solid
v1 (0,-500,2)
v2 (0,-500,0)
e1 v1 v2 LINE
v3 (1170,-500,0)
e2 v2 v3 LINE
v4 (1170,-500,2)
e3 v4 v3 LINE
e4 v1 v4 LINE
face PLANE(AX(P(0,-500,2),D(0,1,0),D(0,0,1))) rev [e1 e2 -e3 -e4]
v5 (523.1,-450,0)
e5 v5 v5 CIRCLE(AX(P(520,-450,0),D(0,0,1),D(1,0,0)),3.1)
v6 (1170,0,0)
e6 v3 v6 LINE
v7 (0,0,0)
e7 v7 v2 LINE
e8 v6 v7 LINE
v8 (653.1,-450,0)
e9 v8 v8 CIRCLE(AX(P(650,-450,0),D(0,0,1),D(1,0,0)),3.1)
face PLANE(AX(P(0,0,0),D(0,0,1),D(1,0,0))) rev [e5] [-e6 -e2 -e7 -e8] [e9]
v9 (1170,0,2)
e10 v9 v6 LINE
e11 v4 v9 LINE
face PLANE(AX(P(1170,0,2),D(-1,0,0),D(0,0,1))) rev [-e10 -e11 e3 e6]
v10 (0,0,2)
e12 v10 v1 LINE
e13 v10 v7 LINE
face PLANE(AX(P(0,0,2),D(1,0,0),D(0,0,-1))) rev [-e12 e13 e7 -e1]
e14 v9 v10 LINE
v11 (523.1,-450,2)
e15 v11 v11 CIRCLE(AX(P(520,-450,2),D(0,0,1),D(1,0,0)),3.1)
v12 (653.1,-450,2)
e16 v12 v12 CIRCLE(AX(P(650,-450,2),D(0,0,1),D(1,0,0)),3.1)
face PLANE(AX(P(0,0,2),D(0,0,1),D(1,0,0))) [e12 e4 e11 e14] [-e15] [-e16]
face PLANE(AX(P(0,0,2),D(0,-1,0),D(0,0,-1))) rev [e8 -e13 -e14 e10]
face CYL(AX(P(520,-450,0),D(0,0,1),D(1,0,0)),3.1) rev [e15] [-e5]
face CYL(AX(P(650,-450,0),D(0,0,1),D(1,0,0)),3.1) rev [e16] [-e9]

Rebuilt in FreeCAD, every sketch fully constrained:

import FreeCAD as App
import Part
import Sketcher


def add_polygon(sketch, points):
    """Adds a closed chain of lines whose ends are joined by coincident constraints."""
    first, n = sketch.GeometryCount, len(points)
    for a, b in zip(points, points[1:] + points[:1]):
        sketch.addGeometry(Part.LineSegment(App.Vector(*a, 0), App.Vector(*b, 0)), False)
    for i in range(n):
        sketch.addConstraint(Sketcher.Constraint("Coincident", first + i, 2, first + (i + 1) % n, 1))

doc = App.newDocument("Part")
params = doc.addObject("Spreadsheet::Sheet", "Params")
for row, (alias, value) in enumerate([
    ("sketch1_width", "1170 mm"),
    ("sketch1_height", "500 mm"),
    ("pad1_length", "2 mm"),
    ("sketch2_diameter", "6.2 mm"),
], start=1):
    params.set(f"A{row}", alias)
    params.set(f"B{row}", "=" + value)
    params.setAlias(f"B{row}", alias)

body = doc.addObject("PartDesign::Body", "Body")

# Sketch on XY plane
sketch1 = body.newObject("Sketcher::SketchObject", "Sketch")
sketch1.AttachmentSupport = (doc.getObject("XY_Plane"), [""])
sketch1.MapMode = "FlatFace"
add_polygon(sketch1, [(0, 0), (0, -500), (1170, -500), (1170, 0)])  # lines 0-3
sketch1.addConstraint(Sketcher.Constraint("Vertical", 0))
sketch1.addConstraint(Sketcher.Constraint("Horizontal", 1))
sketch1.addConstraint(Sketcher.Constraint("Vertical", 2))
sketch1.addConstraint(Sketcher.Constraint("Horizontal", 3))
sketch1.addConstraint(Sketcher.Constraint("Coincident", 3, 2, -1, 1))
sketch1.addConstraint(Sketcher.Constraint("DistanceX", 1, 1, 1, 2, 1170.0))
sketch1.addConstraint(Sketcher.Constraint("DistanceY", 0, 2, 0, 1, 500.0))
sketch1.setExpression("Constraints[9]", "Params.sketch1_width")
sketch1.setExpression("Constraints[10]", "Params.sketch1_height")
pad1 = body.newObject("PartDesign::Pad", "Pad")
pad1.Profile = sketch1
pad1.setExpression("Length", "Params.pad1_length")

# Sketch on XY plane
sketch2 = body.newObject("Sketcher::SketchObject", "Sketch001")
sketch2.AttachmentSupport = (doc.getObject("XY_Plane"), [""])
sketch2.MapMode = "FlatFace"
sketch2.AttachmentOffset = App.Placement(App.Vector(0, 0, 2), App.Rotation())
sketch2.addGeometry(Part.Circle(App.Vector(520, -450, 0), App.Vector(0, 0, 1), 3.1), False)
sketch2.addGeometry(Part.Circle(App.Vector(650, -450, 0), App.Vector(0, 0, 1), 3.1), False)
sketch2.addConstraint(Sketcher.Constraint("Equal", 0, 1))
sketch2.addConstraint(Sketcher.Constraint("Horizontal", 0, 3, 1, 3))
sketch2.addConstraint(Sketcher.Constraint("Diameter", 0, 6.2))
sketch2.addConstraint(Sketcher.Constraint("DistanceX", -1, 1, 0, 3, 520.0))
sketch2.addConstraint(Sketcher.Constraint("DistanceY", 0, 3, -1, 1, 450.0))
sketch2.addConstraint(Sketcher.Constraint("DistanceX", -1, 1, 1, 3, 650.0))
sketch2.setExpression("Constraints[2]", "Params.sketch2_diameter")
pocket1 = body.newObject("PartDesign::Pocket", "Pocket")
pocket1.Profile = sketch2
pocket1.Type = "ThroughAll"

doc.recompute()
